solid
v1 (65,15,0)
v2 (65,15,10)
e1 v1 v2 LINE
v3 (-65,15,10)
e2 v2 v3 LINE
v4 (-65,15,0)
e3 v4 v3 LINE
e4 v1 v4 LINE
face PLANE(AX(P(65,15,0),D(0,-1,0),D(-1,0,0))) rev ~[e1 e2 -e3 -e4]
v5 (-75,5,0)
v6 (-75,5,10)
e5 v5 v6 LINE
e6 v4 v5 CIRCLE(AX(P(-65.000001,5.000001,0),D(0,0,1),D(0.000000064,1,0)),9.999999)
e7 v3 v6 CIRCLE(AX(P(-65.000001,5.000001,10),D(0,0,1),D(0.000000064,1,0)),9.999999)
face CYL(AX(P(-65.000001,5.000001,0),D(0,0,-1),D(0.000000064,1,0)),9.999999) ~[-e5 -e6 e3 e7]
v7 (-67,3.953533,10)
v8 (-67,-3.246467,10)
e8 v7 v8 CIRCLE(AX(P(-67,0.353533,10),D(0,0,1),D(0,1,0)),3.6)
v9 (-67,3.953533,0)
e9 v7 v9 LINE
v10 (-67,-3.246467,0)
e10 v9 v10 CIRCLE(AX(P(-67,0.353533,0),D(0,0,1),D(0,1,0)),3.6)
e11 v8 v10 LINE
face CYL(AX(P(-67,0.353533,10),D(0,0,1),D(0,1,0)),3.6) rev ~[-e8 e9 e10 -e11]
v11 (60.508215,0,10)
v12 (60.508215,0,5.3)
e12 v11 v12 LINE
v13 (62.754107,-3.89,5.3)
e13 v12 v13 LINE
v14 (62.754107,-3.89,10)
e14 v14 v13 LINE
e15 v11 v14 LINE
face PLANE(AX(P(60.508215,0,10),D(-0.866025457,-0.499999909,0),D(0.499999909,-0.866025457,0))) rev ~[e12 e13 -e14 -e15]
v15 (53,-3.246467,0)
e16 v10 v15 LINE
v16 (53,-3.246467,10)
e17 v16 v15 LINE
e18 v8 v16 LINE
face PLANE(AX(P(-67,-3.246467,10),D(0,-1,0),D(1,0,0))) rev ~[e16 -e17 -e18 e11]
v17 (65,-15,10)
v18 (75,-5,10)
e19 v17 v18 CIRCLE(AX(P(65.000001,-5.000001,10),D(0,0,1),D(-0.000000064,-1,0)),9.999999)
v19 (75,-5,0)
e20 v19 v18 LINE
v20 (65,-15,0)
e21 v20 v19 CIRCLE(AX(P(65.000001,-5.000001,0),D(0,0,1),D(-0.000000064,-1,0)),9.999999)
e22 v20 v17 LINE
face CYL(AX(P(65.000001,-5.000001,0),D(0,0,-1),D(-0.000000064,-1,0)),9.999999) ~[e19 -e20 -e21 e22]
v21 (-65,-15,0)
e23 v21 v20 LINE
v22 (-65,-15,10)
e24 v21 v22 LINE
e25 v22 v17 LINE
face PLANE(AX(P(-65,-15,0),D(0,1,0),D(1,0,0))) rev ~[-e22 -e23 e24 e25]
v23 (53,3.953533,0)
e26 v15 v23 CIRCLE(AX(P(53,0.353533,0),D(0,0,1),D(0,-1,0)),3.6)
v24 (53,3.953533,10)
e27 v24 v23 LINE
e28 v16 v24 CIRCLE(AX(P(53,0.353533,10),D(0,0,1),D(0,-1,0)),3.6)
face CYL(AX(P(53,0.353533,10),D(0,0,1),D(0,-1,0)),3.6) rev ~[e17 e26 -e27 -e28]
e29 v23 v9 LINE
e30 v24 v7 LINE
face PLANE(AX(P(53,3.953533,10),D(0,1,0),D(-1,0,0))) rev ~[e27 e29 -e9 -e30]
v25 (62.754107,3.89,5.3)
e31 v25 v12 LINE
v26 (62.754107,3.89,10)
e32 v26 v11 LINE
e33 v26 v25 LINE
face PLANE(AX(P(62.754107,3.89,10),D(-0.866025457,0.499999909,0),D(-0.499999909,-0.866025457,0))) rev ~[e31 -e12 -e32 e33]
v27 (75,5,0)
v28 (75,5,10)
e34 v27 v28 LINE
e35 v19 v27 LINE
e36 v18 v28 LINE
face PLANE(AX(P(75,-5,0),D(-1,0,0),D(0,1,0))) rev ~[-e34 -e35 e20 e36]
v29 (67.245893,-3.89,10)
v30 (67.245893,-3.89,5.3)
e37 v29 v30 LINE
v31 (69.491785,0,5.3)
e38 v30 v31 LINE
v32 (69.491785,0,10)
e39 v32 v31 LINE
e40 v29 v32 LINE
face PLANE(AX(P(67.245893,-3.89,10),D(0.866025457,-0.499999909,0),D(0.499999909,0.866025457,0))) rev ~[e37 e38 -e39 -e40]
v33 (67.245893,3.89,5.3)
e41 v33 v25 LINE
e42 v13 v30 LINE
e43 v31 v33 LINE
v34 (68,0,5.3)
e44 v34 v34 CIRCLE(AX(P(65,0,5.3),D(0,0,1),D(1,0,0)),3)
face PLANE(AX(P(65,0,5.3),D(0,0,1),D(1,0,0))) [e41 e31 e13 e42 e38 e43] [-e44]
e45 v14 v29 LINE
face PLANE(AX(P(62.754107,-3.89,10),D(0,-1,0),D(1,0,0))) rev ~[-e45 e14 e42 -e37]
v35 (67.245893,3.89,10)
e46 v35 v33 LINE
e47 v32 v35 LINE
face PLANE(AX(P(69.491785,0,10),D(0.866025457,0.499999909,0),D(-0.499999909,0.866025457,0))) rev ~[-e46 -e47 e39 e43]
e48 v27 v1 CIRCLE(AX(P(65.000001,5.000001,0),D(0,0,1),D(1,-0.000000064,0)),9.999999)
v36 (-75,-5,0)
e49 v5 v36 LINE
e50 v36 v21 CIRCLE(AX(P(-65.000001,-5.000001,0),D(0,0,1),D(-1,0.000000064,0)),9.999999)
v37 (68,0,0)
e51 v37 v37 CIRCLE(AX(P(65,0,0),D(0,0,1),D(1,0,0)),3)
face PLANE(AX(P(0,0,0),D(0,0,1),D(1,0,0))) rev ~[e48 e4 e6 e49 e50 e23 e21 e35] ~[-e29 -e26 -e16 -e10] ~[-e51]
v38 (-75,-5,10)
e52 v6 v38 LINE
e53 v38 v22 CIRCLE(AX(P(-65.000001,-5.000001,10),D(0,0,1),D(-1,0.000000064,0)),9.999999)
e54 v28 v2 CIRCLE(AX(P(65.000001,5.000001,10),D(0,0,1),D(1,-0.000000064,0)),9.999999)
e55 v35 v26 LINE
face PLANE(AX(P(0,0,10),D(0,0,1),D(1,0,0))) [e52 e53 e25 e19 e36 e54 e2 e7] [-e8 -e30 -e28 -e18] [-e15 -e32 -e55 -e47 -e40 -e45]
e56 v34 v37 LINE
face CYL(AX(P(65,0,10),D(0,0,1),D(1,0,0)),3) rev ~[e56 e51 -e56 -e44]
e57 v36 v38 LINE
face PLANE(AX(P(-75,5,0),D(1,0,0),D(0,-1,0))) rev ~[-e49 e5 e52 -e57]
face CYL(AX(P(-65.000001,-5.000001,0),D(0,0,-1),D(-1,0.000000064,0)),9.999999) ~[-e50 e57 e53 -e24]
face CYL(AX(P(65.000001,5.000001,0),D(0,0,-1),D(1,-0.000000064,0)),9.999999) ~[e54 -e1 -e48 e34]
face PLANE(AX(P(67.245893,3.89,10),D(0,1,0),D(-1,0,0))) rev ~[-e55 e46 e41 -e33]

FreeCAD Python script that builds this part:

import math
import FreeCAD as App
import Part
import Sketcher
Q = App.Units.Quantity

doc = App.newDocument("Part")
body = doc.addObject("PartDesign::Body", "Body")

# Sketch on XY plane
sketch1 = doc.addObject("Sketcher::SketchObject", "Sketch")
body.addObject(sketch1)
sketch1.AttachmentSupport = (doc.XY_Plane, [""])
sketch1.MapMode = "FlatFace"
sketch1.addGeometry([
    Part.ArcOfCircle(Part.Circle(App.Vector(-65.000001, -5.000001, 0), App.Vector(0, 0, 1), 9.999999), math.radians(179.999996), math.radians(270.000004)),  # 0
    Part.LineSegment(App.Vector(-65, -15, 0), App.Vector(65, -15, 0)),  # 1
    Part.ArcOfCircle(Part.Circle(App.Vector(65.000001, -5.000001, 0), App.Vector(0, 0, 1), 9.999999), math.radians(-90.000004), math.radians(0.000004)),  # 2
    Part.LineSegment(App.Vector(75, -5, 0), App.Vector(75, 5, 0)),  # 3
    Part.ArcOfCircle(Part.Circle(App.Vector(65.000001, 5.000001, 0), App.Vector(0, 0, 1), 9.999999), math.radians(-0.000004), math.radians(90.000004)),  # 4
    Part.LineSegment(App.Vector(65, 15, 0), App.Vector(-65, 15, 0)),  # 5
    Part.ArcOfCircle(Part.Circle(App.Vector(-65.000001, 5.000001, 0), App.Vector(0, 0, 1), 9.999999), math.radians(89.999996), math.radians(180.000004)),  # 6
    Part.LineSegment(App.Vector(-75, 5, 0), App.Vector(-75, -5, 0)),  # 7
], False)
sketch1.addConstraint([
    Sketcher.Constraint("Tangent", 0, 2, 1, 1),
    Sketcher.Constraint("Tangent", 1, 2, 2, 1),
    Sketcher.Constraint("Tangent", 2, 2, 3, 1),
    Sketcher.Constraint("Tangent", 3, 2, 4, 1),
    Sketcher.Constraint("Tangent", 4, 2, 5, 1),
    Sketcher.Constraint("Tangent", 5, 2, 6, 1),
    Sketcher.Constraint("Tangent", 6, 2, 7, 1),
    Sketcher.Constraint("Tangent", 7, 2, 0, 1),
    Sketcher.Constraint("Horizontal", 1),
    Sketcher.Constraint("Vertical", 3),
    Sketcher.Constraint("Horizontal", 5),
    Sketcher.Constraint("Vertical", 7),
    Sketcher.Constraint("Equal", 0, 2),
    Sketcher.Constraint("Equal", 2, 4),
    Sketcher.Constraint("Equal", 4, 6),
    Sketcher.Constraint("Symmetric", 0, 3, 4, 3, -1, 1),
    Sketcher.Constraint("Radius", 0, Q("9.999999 mm")),
    Sketcher.Constraint("DistanceX", 1, 1, 1, 2, Q("130 mm")),
    Sketcher.Constraint("DistanceY", 3, 1, 3, 2, Q("10 mm")),
])
pad1 = doc.addObject("PartDesign::Pad", "Pad")
body.addObject(pad1)
pad1.Profile = sketch1
pad1.Length = 10

# Sketch on XY plane
sketch2 = doc.addObject("Sketcher::SketchObject", "Sketch001")
body.addObject(sketch2)
sketch2.AttachmentSupport = (doc.XY_Plane, [""])
sketch2.MapMode = "FlatFace"
sketch2.AttachmentOffset = App.Placement(App.Vector(0, 0, 10), App.Rotation())
sketch2.addGeometry([
    Part.Circle(App.Vector(65, 0, 0), App.Vector(0, 0, 1), 3),  # 0
    Part.LineSegment(App.Vector(53, 3.953533, 0), App.Vector(-67, 3.953533, 0)),  # 1
    Part.ArcOfCircle(Part.Circle(App.Vector(-67, 0.353533, 0), App.Vector(0, 0, 1), 3.6), math.radians(90), math.radians(270)),  # 2
    Part.LineSegment(App.Vector(-67, -3.246467, 0), App.Vector(53, -3.246467, 0)),  # 3
    Part.ArcOfCircle(Part.Circle(App.Vector(53, 0.353533, 0), App.Vector(0, 0, 1), 3.6), math.radians(-90), math.radians(90)),  # 4
], False)
sketch2.addConstraint([
    Sketcher.Constraint("Tangent", 1, 2, 2, 1),
    Sketcher.Constraint("Tangent", 2, 2, 3, 1),
    Sketcher.Constraint("Tangent", 3, 2, 4, 1),
    Sketcher.Constraint("Tangent", 4, 2, 1, 1),
    Sketcher.Constraint("Horizontal", 1),
    Sketcher.Constraint("Horizontal", 3),
    Sketcher.Constraint("PointOnObject", 0, 3, -1),
    Sketcher.Constraint("Diameter", 0, Q("6 mm")),
    Sketcher.Constraint("Radius", 2, Q("3.6 mm")),
    Sketcher.Constraint("DistanceX", 1, 2, 1, 1, Q("120 mm")),
    Sketcher.Constraint("DistanceX", -1, 1, 0, 3, Q("65 mm")),
    Sketcher.Constraint("DistanceX", 2, 3, -1, 1, Q("67 mm")),
    Sketcher.Constraint("DistanceY", -1, 1, 2, 3, Q("0.353533 mm")),
])
pocket1 = doc.addObject("PartDesign::Pocket", "Pocket")
body.addObject(pocket1)
pocket1.Profile = sketch2
pocket1.Type = "ThroughAll"

# Sketch on XY plane
sketch3 = doc.addObject("Sketcher::SketchObject", "Sketch002")
body.addObject(sketch3)
sketch3.AttachmentSupport = (doc.XY_Plane, [""])
sketch3.MapMode = "FlatFace"
sketch3.AttachmentOffset = App.Placement(App.Vector(0, 0, 10), App.Rotation())
sketch3.addGeometry([
    Part.LineSegment(App.Vector(62.754107, -3.89, 0), App.Vector(67.245893, -3.89, 0)),  # 0
    Part.LineSegment(App.Vector(67.245893, -3.89, 0), App.Vector(69.491785, 0, 0)),  # 1
    Part.LineSegment(App.Vector(69.491785, 0, 0), App.Vector(67.245893, 3.89, 0)),  # 2
    Part.LineSegment(App.Vector(67.245893, 3.89, 0), App.Vector(62.754107, 3.89, 0)),  # 3
    Part.LineSegment(App.Vector(62.754107, 3.89, 0), App.Vector(60.508215, 0, 0)),  # 4
    Part.LineSegment(App.Vector(60.508215, 0, 0), App.Vector(62.754107, -3.89, 0)),  # 5
], False)
sketch3.addConstraint([
    Sketcher.Constraint("Coincident", 0, 2, 1, 1),
    Sketcher.Constraint("Coincident", 1, 2, 2, 1),
    Sketcher.Constraint("Coincident", 2, 2, 3, 1),
    Sketcher.Constraint("Coincident", 3, 2, 4, 1),
    Sketcher.Constraint("Coincident", 4, 2, 5, 1),
    Sketcher.Constraint("Coincident", 5, 2, 0, 1),
    Sketcher.Constraint("Horizontal", 0),
    Sketcher.Constraint("Horizontal", 3),
    Sketcher.Constraint("Symmetric", 0, 2, 2, 2, -1),
    Sketcher.Constraint("PointOnObject", 1, 2, -1),
    Sketcher.Constraint("PointOnObject", 4, 2, -1),
    Sketcher.Constraint("Parallel", 1, 4),
    Sketcher.Constraint("Parallel", 2, 5),
    Sketcher.Constraint("Angle", 1, Q("60.000006 deg")),
    Sketcher.Constraint("DistanceY", 0, 2, -1, 1, Q("3.89 mm")),
    Sketcher.Constraint("DistanceX", 0, 1, 0, 2, Q("4.491786 mm")),
    Sketcher.Constraint("DistanceX", -1, 1, 0, 2, Q("67.245893 mm")),
])
pocket2 = doc.addObject("PartDesign::Pocket", "Pocket001")
body.addObject(pocket2)
pocket2.Profile = sketch3
pocket2.Length = 4.7

doc.recompute()
